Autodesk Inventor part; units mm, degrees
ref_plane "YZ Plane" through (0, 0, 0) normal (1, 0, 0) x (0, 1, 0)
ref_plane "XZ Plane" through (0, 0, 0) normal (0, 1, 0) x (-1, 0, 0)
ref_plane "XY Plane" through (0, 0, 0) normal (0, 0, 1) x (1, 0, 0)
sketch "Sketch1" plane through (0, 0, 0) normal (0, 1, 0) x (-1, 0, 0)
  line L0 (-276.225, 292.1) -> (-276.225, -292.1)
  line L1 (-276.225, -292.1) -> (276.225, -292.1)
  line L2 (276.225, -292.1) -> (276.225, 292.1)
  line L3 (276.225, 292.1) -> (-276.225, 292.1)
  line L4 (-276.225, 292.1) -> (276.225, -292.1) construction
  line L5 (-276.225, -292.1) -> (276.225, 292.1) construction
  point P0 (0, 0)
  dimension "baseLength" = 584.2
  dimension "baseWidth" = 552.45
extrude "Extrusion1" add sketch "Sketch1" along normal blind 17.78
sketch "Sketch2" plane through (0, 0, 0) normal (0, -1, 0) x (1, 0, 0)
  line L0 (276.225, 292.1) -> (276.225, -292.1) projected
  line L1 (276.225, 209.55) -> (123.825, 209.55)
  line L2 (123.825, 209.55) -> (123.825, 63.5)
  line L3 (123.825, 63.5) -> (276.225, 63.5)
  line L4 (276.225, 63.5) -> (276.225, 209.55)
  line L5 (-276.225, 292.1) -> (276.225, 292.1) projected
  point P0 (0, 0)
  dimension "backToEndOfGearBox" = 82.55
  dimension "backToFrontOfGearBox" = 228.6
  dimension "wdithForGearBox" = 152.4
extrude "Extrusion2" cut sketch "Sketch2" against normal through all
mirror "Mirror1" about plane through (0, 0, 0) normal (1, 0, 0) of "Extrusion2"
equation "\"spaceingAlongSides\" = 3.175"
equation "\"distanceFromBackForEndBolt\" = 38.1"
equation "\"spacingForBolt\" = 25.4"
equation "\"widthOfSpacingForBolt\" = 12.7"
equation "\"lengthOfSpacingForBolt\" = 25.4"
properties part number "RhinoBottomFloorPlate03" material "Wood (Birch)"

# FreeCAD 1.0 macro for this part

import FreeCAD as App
import Part
import Sketcher
from FreeCAD import Vector
Q = App.Units.Quantity

doc = App.newDocument("Part")
params = doc.addObject("Spreadsheet::Sheet", "Params")
for row, (alias, value) in enumerate([
    ("sketch1_height", "23 in"),
    ("sketch1_width", "21.75 in"),
    ("pad1_length", "0.7 in"),
    ("sketch2_width", "6 in"),
    ("sketch2_height", "5.75 in"),
], start=1):
    params.set(f"A{row}", alias)
    params.set(f"B{row}", "=" + value)
    params.setAlias(f"B{row}", alias)

body = doc.addObject("PartDesign::Body", "Body")

# Sketch on XZ plane
sketch1 = doc.addObject("Sketcher::SketchObject", "Sketch")
body.addObject(sketch1)
sketch1.AttachmentSupport = (doc.XZ_Plane, [""])
sketch1.MapMode = "FlatFace"
sketch1.addGeometry(Part.LineSegment(Vector(-276, 292, 0), Vector(276, 292, 0)), False)
sketch1.addGeometry(Part.LineSegment(Vector(276, 292, 0), Vector(276, -292, 0)), False)
sketch1.addGeometry(Part.LineSegment(Vector(276, -292, 0), Vector(-276, -292, 0)), False)
sketch1.addGeometry(Part.LineSegment(Vector(-276, -292, 0), Vector(-276, 292, 0)), False)
sketch1.addConstraint(Sketcher.Constraint("Coincident", 0, 2, 1, 1))
sketch1.addConstraint(Sketcher.Constraint("Coincident", 1, 2, 2, 1))
sketch1.addConstraint(Sketcher.Constraint("Coincident", 2, 2, 3, 1))
sketch1.addConstraint(Sketcher.Constraint("Coincident", 3, 2, 0, 1))
sketch1.addConstraint(Sketcher.Constraint("Horizontal", 0))
sketch1.addConstraint(Sketcher.Constraint("Vertical", 1))
sketch1.addConstraint(Sketcher.Constraint("Horizontal", 2))
sketch1.addConstraint(Sketcher.Constraint("Vertical", 3))
sketch1.addConstraint(Sketcher.Constraint("Symmetric", 0, 2, 2, 2, -1, 1))
sketch1.addConstraint(Sketcher.Constraint("DistanceY", 1, 2, 1, 1, Q("23 in")))
sketch1.addConstraint(Sketcher.Constraint("DistanceX", 0, 1, 0, 2, Q("21.75 in")))
sketch1.setExpression("Constraints[9]", "Params.sketch1_height")
sketch1.setExpression("Constraints[10]", "Params.sketch1_width")
pad1 = doc.addObject("PartDesign::Pad", "Pad")
body.addObject(pad1)
pad1.Profile = sketch1
pad1.setExpression("Length", "Params.pad1_length")
pad1.Reversed = True

# Sketch on XZ plane
sketch2 = doc.addObject("Sketcher::SketchObject", "Sketch001")
body.addObject(sketch2)
sketch2.AttachmentSupport = (doc.XZ_Plane, [""])
sketch2.MapMode = "FlatFace"
sketch2.addGeometry(Part.LineSegment(Vector(276, 64, 0), Vector(276, 210, 0)), False)
sketch2.addGeometry(Part.LineSegment(Vector(276, 210, 0), Vector(124, 210, 0)), False)
sketch2.addGeometry(Part.LineSegment(Vector(124, 210, 0), Vector(124, 64, 0)), False)
sketch2.addGeometry(Part.LineSegment(Vector(124, 64, 0), Vector(276, 64, 0)), False)
sketch2.addConstraint(Sketcher.Constraint("Coincident", 0, 2, 1, 1))
sketch2.addConstraint(Sketcher.Constraint("Coincident", 1, 2, 2, 1))
sketch2.addConstraint(Sketcher.Constraint("Coincident", 2, 2, 3, 1))
sketch2.addConstraint(Sketcher.Constraint("Coincident", 3, 2, 0, 1))
sketch2.addConstraint(Sketcher.Constraint("Vertical", 0))
sketch2.addConstraint(Sketcher.Constraint("Horizontal", 1))
sketch2.addConstraint(Sketcher.Constraint("Vertical", 2))
sketch2.addConstraint(Sketcher.Constraint("Horizontal", 3))
sketch2.addConstraint(Sketcher.Constraint("DistanceX", 1, 2, 1, 1, Q("6 in")))
sketch2.addConstraint(Sketcher.Constraint("DistanceY", 0, 1, 0, 2, Q("5.75 in")))
sketch2.addConstraint(Sketcher.Constraint("DistanceY", -1, 1, 2, 2, Q("2.5 in")))
sketch2.addConstraint(Sketcher.Constraint("DistanceX", -1, 1, 0, 2, Q("10.875 in")))
sketch2.setExpression("Constraints[8]", "Params.sketch2_width")
sketch2.setExpression("Constraints[9]", "Params.sketch2_height")
pocket1 = doc.addObject("PartDesign::Pocket", "Pocket")
body.addObject(pocket1)
pocket1.Profile = sketch2
pocket1.Type = "ThroughAll"
doc.recompute()

mirrored = doc.addObject("PartDesign::Mirrored", "Mirrored")
body.addObject(mirrored)
mirrored.Originals = [pocket1]
mirrored.MirrorPlane = (doc.YZ_Plane, [""])
body.Tip = mirrored

doc.recompute()
